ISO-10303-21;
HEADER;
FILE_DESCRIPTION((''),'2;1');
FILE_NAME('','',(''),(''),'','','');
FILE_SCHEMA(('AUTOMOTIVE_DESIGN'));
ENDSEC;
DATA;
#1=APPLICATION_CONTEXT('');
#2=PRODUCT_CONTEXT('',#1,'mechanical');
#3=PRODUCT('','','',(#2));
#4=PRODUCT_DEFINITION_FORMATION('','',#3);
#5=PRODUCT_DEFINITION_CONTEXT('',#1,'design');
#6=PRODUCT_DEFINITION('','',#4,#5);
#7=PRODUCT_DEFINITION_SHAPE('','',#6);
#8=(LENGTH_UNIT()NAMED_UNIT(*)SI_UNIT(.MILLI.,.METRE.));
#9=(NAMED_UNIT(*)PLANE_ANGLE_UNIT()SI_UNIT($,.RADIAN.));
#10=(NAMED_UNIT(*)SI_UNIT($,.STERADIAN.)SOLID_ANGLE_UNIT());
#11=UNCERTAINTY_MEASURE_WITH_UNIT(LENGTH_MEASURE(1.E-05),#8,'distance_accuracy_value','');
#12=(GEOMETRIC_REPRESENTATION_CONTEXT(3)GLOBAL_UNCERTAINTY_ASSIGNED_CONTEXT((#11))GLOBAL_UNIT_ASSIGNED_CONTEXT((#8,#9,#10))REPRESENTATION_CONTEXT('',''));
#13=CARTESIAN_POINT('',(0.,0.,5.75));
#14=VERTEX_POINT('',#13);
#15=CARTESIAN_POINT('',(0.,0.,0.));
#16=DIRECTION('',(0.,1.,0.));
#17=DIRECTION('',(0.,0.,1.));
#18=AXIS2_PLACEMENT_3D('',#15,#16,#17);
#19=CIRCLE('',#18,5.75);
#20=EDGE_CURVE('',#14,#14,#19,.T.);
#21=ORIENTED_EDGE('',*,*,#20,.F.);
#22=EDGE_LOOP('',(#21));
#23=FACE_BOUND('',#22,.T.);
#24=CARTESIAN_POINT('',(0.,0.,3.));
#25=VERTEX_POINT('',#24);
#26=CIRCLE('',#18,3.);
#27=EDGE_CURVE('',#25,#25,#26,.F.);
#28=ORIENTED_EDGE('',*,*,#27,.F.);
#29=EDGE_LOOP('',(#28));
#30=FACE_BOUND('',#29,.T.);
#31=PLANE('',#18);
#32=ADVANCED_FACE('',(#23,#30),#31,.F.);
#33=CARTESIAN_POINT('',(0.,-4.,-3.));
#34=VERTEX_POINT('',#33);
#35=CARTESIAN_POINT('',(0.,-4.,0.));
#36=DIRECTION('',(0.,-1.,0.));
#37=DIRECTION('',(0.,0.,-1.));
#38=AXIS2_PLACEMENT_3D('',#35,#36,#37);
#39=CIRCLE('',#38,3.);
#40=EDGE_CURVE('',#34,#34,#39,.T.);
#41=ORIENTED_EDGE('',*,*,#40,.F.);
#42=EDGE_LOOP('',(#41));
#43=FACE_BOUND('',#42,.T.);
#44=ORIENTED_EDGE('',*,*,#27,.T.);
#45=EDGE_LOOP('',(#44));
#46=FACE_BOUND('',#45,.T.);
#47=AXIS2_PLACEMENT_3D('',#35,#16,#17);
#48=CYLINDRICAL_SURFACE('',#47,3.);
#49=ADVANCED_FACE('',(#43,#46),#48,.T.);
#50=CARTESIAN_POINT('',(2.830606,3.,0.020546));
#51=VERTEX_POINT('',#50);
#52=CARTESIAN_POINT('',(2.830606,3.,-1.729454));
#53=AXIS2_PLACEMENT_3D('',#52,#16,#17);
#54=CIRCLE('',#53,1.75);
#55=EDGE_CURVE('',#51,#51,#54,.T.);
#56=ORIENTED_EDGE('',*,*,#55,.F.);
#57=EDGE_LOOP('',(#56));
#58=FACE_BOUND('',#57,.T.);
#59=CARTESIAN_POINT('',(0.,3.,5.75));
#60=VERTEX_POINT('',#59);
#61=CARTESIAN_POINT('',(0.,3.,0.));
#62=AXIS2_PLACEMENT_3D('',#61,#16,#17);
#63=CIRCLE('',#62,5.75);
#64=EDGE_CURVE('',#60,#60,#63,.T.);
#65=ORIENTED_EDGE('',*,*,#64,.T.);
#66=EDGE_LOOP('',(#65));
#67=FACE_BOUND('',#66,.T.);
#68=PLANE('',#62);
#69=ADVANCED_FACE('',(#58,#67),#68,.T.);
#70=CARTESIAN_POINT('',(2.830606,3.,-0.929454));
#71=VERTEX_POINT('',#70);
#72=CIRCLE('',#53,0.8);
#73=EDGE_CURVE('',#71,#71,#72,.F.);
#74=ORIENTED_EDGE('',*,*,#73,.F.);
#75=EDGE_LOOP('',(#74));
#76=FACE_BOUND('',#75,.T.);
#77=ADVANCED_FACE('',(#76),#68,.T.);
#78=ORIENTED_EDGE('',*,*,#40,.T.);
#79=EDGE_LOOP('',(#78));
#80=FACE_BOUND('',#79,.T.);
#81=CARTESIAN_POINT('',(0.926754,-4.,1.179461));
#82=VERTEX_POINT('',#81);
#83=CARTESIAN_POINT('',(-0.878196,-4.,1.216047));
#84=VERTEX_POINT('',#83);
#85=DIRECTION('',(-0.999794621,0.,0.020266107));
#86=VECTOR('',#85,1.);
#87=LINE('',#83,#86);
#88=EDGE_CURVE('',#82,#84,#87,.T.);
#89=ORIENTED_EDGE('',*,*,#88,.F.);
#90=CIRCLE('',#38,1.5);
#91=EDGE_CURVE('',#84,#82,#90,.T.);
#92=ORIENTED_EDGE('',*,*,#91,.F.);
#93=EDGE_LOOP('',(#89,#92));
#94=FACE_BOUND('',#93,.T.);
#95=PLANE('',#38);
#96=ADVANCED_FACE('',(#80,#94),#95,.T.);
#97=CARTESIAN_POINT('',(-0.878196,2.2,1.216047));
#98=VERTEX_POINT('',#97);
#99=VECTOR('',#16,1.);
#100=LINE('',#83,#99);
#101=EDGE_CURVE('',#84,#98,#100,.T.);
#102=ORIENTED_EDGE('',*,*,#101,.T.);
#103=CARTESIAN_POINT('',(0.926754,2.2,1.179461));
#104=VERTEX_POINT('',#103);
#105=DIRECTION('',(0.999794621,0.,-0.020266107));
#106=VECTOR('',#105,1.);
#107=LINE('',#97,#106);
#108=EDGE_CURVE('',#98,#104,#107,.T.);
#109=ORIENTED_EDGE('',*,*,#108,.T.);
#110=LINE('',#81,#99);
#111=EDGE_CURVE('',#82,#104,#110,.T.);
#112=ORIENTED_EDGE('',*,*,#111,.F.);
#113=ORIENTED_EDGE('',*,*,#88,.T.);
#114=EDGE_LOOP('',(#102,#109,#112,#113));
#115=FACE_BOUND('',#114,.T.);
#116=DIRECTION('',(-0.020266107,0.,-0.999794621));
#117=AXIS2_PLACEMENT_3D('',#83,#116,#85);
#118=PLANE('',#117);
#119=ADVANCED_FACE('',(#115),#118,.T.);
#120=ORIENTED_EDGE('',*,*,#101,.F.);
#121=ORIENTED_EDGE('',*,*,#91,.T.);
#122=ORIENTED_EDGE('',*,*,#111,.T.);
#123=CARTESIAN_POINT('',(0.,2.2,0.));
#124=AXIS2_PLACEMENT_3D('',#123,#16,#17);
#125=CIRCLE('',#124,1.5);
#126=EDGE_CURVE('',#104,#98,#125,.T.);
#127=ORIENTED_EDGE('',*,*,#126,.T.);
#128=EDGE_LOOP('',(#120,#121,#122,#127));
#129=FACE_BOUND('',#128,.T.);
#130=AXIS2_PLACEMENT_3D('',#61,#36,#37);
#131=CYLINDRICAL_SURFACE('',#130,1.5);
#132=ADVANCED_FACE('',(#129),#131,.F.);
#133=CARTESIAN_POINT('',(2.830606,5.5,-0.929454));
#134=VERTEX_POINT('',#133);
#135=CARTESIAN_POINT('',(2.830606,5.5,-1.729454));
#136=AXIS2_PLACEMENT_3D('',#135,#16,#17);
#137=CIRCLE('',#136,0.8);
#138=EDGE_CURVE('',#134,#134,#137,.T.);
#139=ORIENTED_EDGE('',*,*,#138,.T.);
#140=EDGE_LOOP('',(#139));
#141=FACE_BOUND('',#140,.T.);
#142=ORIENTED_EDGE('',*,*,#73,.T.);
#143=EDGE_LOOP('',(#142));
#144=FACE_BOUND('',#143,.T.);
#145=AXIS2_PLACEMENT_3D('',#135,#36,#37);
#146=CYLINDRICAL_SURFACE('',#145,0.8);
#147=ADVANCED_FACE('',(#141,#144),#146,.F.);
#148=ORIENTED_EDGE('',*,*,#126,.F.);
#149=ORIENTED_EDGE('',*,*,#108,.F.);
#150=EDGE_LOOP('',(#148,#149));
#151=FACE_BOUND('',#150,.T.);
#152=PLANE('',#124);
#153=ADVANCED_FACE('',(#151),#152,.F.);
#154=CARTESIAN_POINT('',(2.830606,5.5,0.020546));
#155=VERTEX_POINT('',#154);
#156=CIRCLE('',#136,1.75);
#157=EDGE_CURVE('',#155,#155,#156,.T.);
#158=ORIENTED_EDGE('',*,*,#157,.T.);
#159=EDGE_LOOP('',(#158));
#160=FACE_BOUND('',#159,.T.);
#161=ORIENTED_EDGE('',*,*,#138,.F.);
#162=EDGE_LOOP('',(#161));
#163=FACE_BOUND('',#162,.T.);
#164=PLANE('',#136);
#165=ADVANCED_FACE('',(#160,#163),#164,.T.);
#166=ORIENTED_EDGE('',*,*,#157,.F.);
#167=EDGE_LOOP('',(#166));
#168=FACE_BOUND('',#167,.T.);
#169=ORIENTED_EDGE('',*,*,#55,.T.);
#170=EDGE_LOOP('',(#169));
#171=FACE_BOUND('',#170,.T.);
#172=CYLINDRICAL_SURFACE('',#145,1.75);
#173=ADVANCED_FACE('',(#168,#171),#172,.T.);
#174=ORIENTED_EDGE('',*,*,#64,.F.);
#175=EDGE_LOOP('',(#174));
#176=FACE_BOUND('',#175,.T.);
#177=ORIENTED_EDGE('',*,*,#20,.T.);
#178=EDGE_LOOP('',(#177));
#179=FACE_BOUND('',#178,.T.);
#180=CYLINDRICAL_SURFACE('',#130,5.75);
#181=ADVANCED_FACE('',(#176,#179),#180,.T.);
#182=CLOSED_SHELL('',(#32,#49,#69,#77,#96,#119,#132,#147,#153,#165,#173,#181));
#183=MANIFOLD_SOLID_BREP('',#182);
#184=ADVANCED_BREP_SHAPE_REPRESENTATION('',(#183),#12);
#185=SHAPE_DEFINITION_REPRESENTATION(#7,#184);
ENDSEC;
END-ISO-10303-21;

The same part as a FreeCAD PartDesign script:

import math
import FreeCAD as App
import Part
import Sketcher

V = App.Vector

doc = App.newDocument("Part")
params = doc.addObject("Spreadsheet::Sheet", "Params")
for row, (alias, value) in enumerate([
    ("sketch1_diameter", "3 mm"),
    ("sketch1_diameter2", "11.5 mm"),
    ("pad1_length", "3 mm"),
    ("sketch2_diameter", "6 mm"),
    ("sketch2_diameter2", "3 mm"),
    ("pad2_length", "4 mm"),
    ("sketch3_radius", "1.5 mm"),
    ("pad3_length", "7 mm"),
    ("sketch4_diameter", "3.5 mm"),
    ("sketch4_diameter2", "1.6 mm"),
    ("pad4_length", "2.5 mm"),
    ("sketch5_diameter", "11.5 mm"),
    ("pad5_length", "0.8 mm"),
], start=1):
    params.set(f"A{row}", alias)
    params.set(f"B{row}", "=" + value)
    params.setAlias(f"B{row}", alias)

body = doc.addObject("PartDesign::Body", "Body")

# Sketch on XZ plane
sketch1 = doc.addObject("Sketcher::SketchObject", "Sketch")
body.addObject(sketch1)
sketch1.AttachmentSupport = (doc.XZ_Plane, [""])
sketch1.MapMode = "FlatFace"
sketch1.addGeometry([
    Part.Circle(V(0, 0, 0), V(0, 0, 1), 5.8),
    Part.Circle(V(0, 0, 0), V(0, 0, 1), 1.5),
], False)
sketch1.addConstraint([
    Sketcher.Constraint("Coincident", 0, 3, -1, 1),
    Sketcher.Constraint("Coincident", 1, 3, -1, 1),
    Sketcher.Constraint("Diameter", 1, 3.0),
    Sketcher.Constraint("Diameter", 0, 11.5),
])
sketch1.setExpression("Constraints[2]", "Params.sketch1_diameter")
sketch1.setExpression("Constraints[3]", "Params.sketch1_diameter2")
pad1 = doc.addObject("PartDesign::Pad", "Pad")
body.addObject(pad1)
pad1.Profile = sketch1
pad1.setExpression("Length", "Params.pad1_length")
pad1.Reversed = True

# Sketch on XZ plane
sketch2 = doc.addObject("Sketcher::SketchObject", "Sketch001")
body.addObject(sketch2)
sketch2.AttachmentSupport = (doc.XZ_Plane, [""])
sketch2.MapMode = "FlatFace"
sketch2.AttachmentOffset = App.Placement(V(0, 0, 4), App.Rotation())
sketch2.addGeometry([
    Part.Circle(V(0, 0, 0), V(0, 0, 1), 3),
    Part.Circle(V(0, 0, 0), V(0, 0, 1), 1.5),
], False)
sketch2.addConstraint([
    Sketcher.Constraint("Coincident", 0, 3, -1, 1),
    Sketcher.Constraint("Coincident", 1, 3, -1, 1),
    Sketcher.Constraint("Diameter", 0, 6.0),
    Sketcher.Constraint("Diameter", 1, 3.0),
])
sketch2.setExpression("Constraints[2]", "Params.sketch2_diameter")
sketch2.setExpression("Constraints[3]", "Params.sketch2_diameter2")
pad2 = doc.addObject("PartDesign::Pad", "Pad001")
body.addObject(pad2)
pad2.Profile = sketch2
pad2.setExpression("Length", "Params.pad2_length")
pad2.Reversed = True

# Sketch on XZ plane
sketch3 = doc.addObject("Sketcher::SketchObject", "Sketch002")
body.addObject(sketch3)
sketch3.AttachmentSupport = (doc.XZ_Plane, [""])
sketch3.MapMode = "FlatFace"
sketch3.AttachmentOffset = App.Placement(V(0, 0, 4), App.Rotation())
sketch3.addGeometry([
    Part.LineSegment(V(0.9, 1.2, 0), V(-0.9, 1.2, 0)),
    Part.ArcOfCircle(Part.Circle(V(0, 0, 0), V(0, 0, 1), 1.5), math.radians(52), math.radians(126)),
], False)
sketch3.addConstraint([
    Sketcher.Constraint("Coincident", 0, 1, 1, 1),
    Sketcher.Constraint("Coincident", 1, 2, 0, 2),
    Sketcher.Constraint("Coincident", 1, 3, -1, 1),
    Sketcher.Constraint("Radius", 1, 1.5),
    Sketcher.Constraint("Distance", 0, 1.805321),
    Sketcher.Constraint("DistanceY", -1, 1, 0, 1, 1.179461),
])
sketch3.setExpression("Constraints[3]", "Params.sketch3_radius")
pad3 = doc.addObject("PartDesign::Pad", "Pad002")
body.addObject(pad3)
pad3.Profile = sketch3
pad3.setExpression("Length", "Params.pad3_length")
pad3.Reversed = True

# Sketch on XZ plane
sketch4 = doc.addObject("Sketcher::SketchObject", "Sketch003")
body.addObject(sketch4)
sketch4.AttachmentSupport = (doc.XZ_Plane, [""])
sketch4.MapMode = "FlatFace"
sketch4.AttachmentOffset = App.Placement(V(0, 0, -3), App.Rotation())
sketch4.addGeometry([
    Part.Circle(V(2.8, -1.7, 0), V(0, 0, 1), 1.8),
    Part.Circle(V(2.8, -1.7, 0), V(0, 0, 1), 0.8),
], False)
sketch4.addConstraint([
    Sketcher.Constraint("Coincident", 1, 3, 0, 3),
    Sketcher.Constraint("Diameter", 0, 3.5),
    Sketcher.Constraint("Diameter", 1, 1.6),
    Sketcher.Constraint("DistanceX", -1, 1, 0, 3, 2.830606),
    Sketcher.Constraint("DistanceY", 0, 3, -1, 1, 1.729454),
])
sketch4.setExpression("Constraints[1]", "Params.sketch4_diameter")
sketch4.setExpression("Constraints[2]", "Params.sketch4_diameter2")
pad4 = doc.addObject("PartDesign::Pad", "Pad003")
body.addObject(pad4)
pad4.Profile = sketch4
pad4.setExpression("Length", "Params.pad4_length")
pad4.Reversed = True

# Sketch on XZ plane
sketch5 = doc.addObject("Sketcher::SketchObject", "Sketch004")
body.addObject(sketch5)
sketch5.AttachmentSupport = (doc.XZ_Plane, [""])
sketch5.MapMode = "FlatFace"
sketch5.AttachmentOffset = App.Placement(V(0, 0, -2.2), App.Rotation())
sketch5.addGeometry(Part.Circle(V(0, 0, 0), V(0, 0, 1), 6), False)
sketch5.addConstraint([
    Sketcher.Constraint("Coincident", 0, 3, -1, 1),
    Sketcher.Constraint("Diameter", 0, 11.5),
])
sketch5.setExpression("Constraints[1]", "Params.sketch5_diameter")
pad5 = doc.addObject("PartDesign::Pad", "Pad004")
body.addObject(pad5)
pad5.Profile = sketch5
pad5.setExpression("Length", "Params.pad5_length")
pad5.Reversed = True

doc.recompute()
